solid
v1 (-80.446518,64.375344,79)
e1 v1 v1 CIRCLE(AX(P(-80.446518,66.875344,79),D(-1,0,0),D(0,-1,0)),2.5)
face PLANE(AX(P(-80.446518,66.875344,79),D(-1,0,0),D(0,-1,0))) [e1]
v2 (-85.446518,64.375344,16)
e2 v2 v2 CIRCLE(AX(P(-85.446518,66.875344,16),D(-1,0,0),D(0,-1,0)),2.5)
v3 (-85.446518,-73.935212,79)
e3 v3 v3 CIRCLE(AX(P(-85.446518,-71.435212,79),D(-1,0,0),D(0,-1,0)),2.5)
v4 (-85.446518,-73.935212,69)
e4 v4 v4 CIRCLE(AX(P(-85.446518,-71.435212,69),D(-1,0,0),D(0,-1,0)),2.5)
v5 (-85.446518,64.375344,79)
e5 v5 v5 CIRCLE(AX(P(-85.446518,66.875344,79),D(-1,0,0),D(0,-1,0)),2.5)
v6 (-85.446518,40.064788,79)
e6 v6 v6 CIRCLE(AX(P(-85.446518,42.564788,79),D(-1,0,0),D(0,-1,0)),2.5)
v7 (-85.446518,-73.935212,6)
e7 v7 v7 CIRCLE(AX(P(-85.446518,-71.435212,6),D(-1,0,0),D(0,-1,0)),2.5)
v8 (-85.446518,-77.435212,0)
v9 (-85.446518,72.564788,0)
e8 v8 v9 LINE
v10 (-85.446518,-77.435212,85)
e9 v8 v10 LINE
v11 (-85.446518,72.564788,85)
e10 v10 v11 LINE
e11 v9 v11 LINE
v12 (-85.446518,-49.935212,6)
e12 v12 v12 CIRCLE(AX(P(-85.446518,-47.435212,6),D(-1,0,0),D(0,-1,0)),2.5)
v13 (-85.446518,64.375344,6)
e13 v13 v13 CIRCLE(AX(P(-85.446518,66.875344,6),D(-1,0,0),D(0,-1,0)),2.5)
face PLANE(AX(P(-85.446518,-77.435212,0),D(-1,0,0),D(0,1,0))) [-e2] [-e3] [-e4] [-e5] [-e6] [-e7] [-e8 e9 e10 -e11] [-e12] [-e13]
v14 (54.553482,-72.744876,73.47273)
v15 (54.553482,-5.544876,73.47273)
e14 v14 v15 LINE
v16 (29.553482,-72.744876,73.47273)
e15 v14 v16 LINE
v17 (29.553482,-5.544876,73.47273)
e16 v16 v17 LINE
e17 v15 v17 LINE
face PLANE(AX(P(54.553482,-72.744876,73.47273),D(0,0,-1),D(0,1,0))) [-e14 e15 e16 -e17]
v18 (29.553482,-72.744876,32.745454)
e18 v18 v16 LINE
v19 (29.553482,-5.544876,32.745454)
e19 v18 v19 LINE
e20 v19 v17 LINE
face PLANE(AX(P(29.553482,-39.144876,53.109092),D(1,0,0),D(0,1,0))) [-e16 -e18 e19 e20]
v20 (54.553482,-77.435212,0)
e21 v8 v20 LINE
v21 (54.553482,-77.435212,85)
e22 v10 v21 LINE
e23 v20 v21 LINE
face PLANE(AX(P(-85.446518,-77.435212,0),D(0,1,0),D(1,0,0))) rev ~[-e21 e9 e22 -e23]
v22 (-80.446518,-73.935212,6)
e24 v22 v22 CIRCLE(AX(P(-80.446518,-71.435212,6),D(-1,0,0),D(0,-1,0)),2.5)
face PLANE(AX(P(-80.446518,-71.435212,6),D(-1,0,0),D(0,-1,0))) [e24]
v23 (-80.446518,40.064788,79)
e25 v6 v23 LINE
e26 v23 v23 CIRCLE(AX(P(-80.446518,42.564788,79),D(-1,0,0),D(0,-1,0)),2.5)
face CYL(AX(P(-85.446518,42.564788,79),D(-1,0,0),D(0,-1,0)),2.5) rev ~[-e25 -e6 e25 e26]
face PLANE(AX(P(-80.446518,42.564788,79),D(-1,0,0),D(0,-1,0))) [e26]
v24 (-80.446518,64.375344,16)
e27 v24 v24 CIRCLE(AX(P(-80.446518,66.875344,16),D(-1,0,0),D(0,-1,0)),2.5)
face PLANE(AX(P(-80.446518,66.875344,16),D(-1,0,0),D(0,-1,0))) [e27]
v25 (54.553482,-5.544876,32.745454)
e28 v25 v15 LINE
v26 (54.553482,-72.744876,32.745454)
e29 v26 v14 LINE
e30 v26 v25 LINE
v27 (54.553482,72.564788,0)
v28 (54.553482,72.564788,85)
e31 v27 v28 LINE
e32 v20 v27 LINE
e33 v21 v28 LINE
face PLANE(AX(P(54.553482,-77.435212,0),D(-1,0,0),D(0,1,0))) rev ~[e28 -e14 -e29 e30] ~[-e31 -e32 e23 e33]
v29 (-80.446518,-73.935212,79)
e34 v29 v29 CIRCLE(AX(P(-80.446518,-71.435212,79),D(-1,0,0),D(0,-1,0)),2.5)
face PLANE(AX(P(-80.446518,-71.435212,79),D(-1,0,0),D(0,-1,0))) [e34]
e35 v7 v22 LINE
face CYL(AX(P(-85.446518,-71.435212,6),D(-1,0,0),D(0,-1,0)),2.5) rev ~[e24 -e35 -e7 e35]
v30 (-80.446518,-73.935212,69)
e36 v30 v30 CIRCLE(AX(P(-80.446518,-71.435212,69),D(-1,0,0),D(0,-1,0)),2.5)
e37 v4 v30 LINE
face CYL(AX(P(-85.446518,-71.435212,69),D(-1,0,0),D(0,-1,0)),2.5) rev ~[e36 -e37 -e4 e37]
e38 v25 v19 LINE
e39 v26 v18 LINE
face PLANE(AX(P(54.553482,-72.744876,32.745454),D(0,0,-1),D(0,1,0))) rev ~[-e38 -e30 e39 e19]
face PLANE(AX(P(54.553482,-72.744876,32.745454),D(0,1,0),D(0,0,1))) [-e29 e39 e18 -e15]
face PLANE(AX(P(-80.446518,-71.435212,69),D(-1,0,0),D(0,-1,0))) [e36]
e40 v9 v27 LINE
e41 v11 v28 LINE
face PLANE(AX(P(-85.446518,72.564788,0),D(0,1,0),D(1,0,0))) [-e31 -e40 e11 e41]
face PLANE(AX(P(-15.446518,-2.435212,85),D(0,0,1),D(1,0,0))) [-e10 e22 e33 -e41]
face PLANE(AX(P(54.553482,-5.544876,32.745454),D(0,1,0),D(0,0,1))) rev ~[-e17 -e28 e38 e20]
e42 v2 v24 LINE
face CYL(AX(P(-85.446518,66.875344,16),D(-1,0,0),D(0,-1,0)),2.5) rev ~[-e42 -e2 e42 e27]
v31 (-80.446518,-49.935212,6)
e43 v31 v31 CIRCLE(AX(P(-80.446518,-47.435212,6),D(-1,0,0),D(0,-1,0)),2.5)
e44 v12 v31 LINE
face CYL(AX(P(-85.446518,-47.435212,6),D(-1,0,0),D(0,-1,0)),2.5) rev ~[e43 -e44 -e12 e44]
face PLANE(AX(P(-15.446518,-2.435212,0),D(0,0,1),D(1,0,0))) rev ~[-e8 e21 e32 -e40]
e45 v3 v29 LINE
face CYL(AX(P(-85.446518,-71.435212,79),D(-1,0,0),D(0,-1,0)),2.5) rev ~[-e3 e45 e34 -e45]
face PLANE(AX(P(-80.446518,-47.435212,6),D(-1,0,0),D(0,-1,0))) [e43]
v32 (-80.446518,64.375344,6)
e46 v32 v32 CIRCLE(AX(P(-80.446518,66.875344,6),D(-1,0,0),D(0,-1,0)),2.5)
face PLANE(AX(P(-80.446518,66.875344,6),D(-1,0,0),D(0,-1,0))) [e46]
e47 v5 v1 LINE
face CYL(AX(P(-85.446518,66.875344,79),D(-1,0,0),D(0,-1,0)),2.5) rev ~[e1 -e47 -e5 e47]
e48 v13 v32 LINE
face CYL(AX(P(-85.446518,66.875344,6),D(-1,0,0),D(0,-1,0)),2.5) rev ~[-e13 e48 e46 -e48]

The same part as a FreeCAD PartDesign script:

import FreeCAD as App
import Part
import Sketcher
Q = App.Units.Quantity

doc = App.newDocument("Part")
body = doc.addObject("PartDesign::Body", "Body")

# Sketch on XY plane
sketch1 = body.newObject("Sketcher::SketchObject", "Sketch")
sketch1.AttachmentSupport = (doc.getObject("XY_Plane"), [""])
sketch1.MapMode = "FlatFace"
sketch1.addGeometry([
    Part.LineSegment(App.Vector(-85, 73, 0), App.Vector(-85, -77, 0)),
    Part.LineSegment(App.Vector(-85, -77, 0), App.Vector(55, -77, 0)),
    Part.LineSegment(App.Vector(55, -77, 0), App.Vector(55, 73, 0)),
    Part.LineSegment(App.Vector(55, 73, 0), App.Vector(-85, 73, 0)),
], False)
sketch1.addConstraint([
    Sketcher.Constraint("Coincident", 0, 2, 1, 1),
    Sketcher.Constraint("Coincident", 1, 2, 2, 1),
    Sketcher.Constraint("Coincident", 2, 2, 3, 1),
    Sketcher.Constraint("Coincident", 3, 2, 0, 1),
    Sketcher.Constraint("Vertical", 0),
    Sketcher.Constraint("Horizontal", 1),
    Sketcher.Constraint("Vertical", 2),
    Sketcher.Constraint("Horizontal", 3),
    Sketcher.Constraint("DistanceX", 1, 1, 1, 2, Q("140 mm")),
    Sketcher.Constraint("DistanceY", 0, 2, 0, 1, Q("150 mm")),
    Sketcher.Constraint("DistanceX", 0, 2, -1, 1, Q("85.446518 mm")),
    Sketcher.Constraint("DistanceY", 0, 2, -1, 1, Q("77.435212 mm")),
])
pad1 = body.newObject("PartDesign::Pad", "Pad")
pad1.Profile = sketch1
pad1.Length = 85

# Sketch on YZ plane
sketch2 = body.newObject("Sketcher::SketchObject", "Sketch001")
sketch2.AttachmentSupport = (doc.getObject("YZ_Plane"), [""])
sketch2.MapMode = "FlatFace"
sketch2.AttachmentOffset = App.Placement(App.Vector(0, 0, 54.553482), App.Rotation())
sketch2.addGeometry([
    Part.LineSegment(App.Vector(-73, 73, 0), App.Vector(-73, 33, 0)),
    Part.LineSegment(App.Vector(-73, 33, 0), App.Vector(-6, 33, 0)),
    Part.LineSegment(App.Vector(-6, 33, 0), App.Vector(-6, 73, 0)),
    Part.LineSegment(App.Vector(-6, 73, 0), App.Vector(-73, 73, 0)),
], False)
sketch2.addConstraint([
    Sketcher.Constraint("Coincident", 0, 2, 1, 1),
    Sketcher.Constraint("Coincident", 1, 2, 2, 1),
    Sketcher.Constraint("Coincident", 2, 2, 3, 1),
    Sketcher.Constraint("Coincident", 3, 2, 0, 1),
    Sketcher.Constraint("Vertical", 0),
    Sketcher.Constraint("Horizontal", 1),
    Sketcher.Constraint("Vertical", 2),
    Sketcher.Constraint("Horizontal", 3),
    Sketcher.Constraint("DistanceX", 1, 1, 1, 2, Q("67.2 mm")),
    Sketcher.Constraint("DistanceY", 0, 2, 0, 1, Q("40.727277 mm")),
    Sketcher.Constraint("DistanceY", -1, 1, 2, 2, Q("73.47273 mm")),
    Sketcher.Constraint("DistanceX", 0, 2, -1, 1, Q("72.744876 mm")),
])
pocket1 = body.newObject("PartDesign::Pocket", "Pocket")
pocket1.Profile = sketch2
pocket1.Length = 25

# Sketch on YZ plane
sketch3 = body.newObject("Sketcher::SketchObject", "Sketch002")
sketch3.AttachmentSupport = (doc.getObject("YZ_Plane"), [""])
sketch3.MapMode = "FlatFace"
sketch3.AttachmentOffset = App.Placement(App.Vector(0, 0, -85.446518), App.Rotation())
sketch3.addGeometry([
    Part.Circle(App.Vector(66.9, 79, 0), App.Vector(0, 0, 1), 2.5),  # 0
    Part.Circle(App.Vector(42.6, 79, 0), App.Vector(0, 0, 1), 2.5),  # 1
    Part.Circle(App.Vector(66.9, 16, 0), App.Vector(0, 0, 1), 2.5),  # 2
    Part.Circle(App.Vector(66.9, 6, 0), App.Vector(0, 0, 1), 2.5),  # 3
    Part.Circle(App.Vector(-47.4, 6, 0), App.Vector(0, 0, 1), 2.5),  # 4
    Part.Circle(App.Vector(-71.4, 6, 0), App.Vector(0, 0, 1), 2.5),  # 5
    Part.Circle(App.Vector(-71.4, 79, 0), App.Vector(0, 0, 1), 2.5),  # 6
    Part.Circle(App.Vector(-71.4, 69, 0), App.Vector(0, 0, 1), 2.5),  # 7
], False)
sketch3.addConstraint([
    Sketcher.Constraint("Equal", 0, 1),
    Sketcher.Constraint("Equal", 1, 2),
    Sketcher.Constraint("Equal", 2, 3),
    Sketcher.Constraint("Equal", 3, 4),
    Sketcher.Constraint("Equal", 4, 5),
    Sketcher.Constraint("Equal", 5, 6),
    Sketcher.Constraint("Equal", 6, 7),
    Sketcher.Constraint("Horizontal", 0, 3, 1, 3),
    Sketcher.Constraint("Horizontal", 3, 3, 4, 3),
    Sketcher.Constraint("Horizontal", 4, 3, 5, 3),
    Sketcher.Constraint("Horizontal", 1, 3, 6, 3),
    Sketcher.Constraint("Vertical", 0, 3, 2, 3),
    Sketcher.Constraint("Vertical", 2, 3, 3, 3),
    Sketcher.Constraint("Vertical", 5, 3, 6, 3),
    Sketcher.Constraint("Vertical", 6, 3, 7, 3),
    Sketcher.Constraint("Diameter", 0, Q("5 mm")),
    Sketcher.Constraint("DistanceY", -1, 1, 0, 3, Q("79 mm")),
    Sketcher.Constraint("DistanceY", -1, 1, 2, 3, Q("16 mm")),
    Sketcher.Constraint("DistanceY", -1, 1, 3, 3, Q("6 mm")),
    Sketcher.Constraint("DistanceY", -1, 1, 7, 3, Q("69 mm")),
    Sketcher.Constraint("DistanceX", 4, 3, 1, 3, Q("90 mm")),
    Sketcher.Constraint("DistanceX", 5, 3, 4, 3, Q("24 mm")),
    Sketcher.Constraint("DistanceX", -1, 1, 0, 3, Q("66.875344 mm")),
    Sketcher.Constraint("DistanceX", -1, 1, 1, 3, Q("42.564788 mm")),
])
pocket2 = body.newObject("PartDesign::Pocket", "Pocket001")
pocket2.Profile = sketch3
pocket2.Length = 5
pocket2.Reversed = True

doc.recompute()
